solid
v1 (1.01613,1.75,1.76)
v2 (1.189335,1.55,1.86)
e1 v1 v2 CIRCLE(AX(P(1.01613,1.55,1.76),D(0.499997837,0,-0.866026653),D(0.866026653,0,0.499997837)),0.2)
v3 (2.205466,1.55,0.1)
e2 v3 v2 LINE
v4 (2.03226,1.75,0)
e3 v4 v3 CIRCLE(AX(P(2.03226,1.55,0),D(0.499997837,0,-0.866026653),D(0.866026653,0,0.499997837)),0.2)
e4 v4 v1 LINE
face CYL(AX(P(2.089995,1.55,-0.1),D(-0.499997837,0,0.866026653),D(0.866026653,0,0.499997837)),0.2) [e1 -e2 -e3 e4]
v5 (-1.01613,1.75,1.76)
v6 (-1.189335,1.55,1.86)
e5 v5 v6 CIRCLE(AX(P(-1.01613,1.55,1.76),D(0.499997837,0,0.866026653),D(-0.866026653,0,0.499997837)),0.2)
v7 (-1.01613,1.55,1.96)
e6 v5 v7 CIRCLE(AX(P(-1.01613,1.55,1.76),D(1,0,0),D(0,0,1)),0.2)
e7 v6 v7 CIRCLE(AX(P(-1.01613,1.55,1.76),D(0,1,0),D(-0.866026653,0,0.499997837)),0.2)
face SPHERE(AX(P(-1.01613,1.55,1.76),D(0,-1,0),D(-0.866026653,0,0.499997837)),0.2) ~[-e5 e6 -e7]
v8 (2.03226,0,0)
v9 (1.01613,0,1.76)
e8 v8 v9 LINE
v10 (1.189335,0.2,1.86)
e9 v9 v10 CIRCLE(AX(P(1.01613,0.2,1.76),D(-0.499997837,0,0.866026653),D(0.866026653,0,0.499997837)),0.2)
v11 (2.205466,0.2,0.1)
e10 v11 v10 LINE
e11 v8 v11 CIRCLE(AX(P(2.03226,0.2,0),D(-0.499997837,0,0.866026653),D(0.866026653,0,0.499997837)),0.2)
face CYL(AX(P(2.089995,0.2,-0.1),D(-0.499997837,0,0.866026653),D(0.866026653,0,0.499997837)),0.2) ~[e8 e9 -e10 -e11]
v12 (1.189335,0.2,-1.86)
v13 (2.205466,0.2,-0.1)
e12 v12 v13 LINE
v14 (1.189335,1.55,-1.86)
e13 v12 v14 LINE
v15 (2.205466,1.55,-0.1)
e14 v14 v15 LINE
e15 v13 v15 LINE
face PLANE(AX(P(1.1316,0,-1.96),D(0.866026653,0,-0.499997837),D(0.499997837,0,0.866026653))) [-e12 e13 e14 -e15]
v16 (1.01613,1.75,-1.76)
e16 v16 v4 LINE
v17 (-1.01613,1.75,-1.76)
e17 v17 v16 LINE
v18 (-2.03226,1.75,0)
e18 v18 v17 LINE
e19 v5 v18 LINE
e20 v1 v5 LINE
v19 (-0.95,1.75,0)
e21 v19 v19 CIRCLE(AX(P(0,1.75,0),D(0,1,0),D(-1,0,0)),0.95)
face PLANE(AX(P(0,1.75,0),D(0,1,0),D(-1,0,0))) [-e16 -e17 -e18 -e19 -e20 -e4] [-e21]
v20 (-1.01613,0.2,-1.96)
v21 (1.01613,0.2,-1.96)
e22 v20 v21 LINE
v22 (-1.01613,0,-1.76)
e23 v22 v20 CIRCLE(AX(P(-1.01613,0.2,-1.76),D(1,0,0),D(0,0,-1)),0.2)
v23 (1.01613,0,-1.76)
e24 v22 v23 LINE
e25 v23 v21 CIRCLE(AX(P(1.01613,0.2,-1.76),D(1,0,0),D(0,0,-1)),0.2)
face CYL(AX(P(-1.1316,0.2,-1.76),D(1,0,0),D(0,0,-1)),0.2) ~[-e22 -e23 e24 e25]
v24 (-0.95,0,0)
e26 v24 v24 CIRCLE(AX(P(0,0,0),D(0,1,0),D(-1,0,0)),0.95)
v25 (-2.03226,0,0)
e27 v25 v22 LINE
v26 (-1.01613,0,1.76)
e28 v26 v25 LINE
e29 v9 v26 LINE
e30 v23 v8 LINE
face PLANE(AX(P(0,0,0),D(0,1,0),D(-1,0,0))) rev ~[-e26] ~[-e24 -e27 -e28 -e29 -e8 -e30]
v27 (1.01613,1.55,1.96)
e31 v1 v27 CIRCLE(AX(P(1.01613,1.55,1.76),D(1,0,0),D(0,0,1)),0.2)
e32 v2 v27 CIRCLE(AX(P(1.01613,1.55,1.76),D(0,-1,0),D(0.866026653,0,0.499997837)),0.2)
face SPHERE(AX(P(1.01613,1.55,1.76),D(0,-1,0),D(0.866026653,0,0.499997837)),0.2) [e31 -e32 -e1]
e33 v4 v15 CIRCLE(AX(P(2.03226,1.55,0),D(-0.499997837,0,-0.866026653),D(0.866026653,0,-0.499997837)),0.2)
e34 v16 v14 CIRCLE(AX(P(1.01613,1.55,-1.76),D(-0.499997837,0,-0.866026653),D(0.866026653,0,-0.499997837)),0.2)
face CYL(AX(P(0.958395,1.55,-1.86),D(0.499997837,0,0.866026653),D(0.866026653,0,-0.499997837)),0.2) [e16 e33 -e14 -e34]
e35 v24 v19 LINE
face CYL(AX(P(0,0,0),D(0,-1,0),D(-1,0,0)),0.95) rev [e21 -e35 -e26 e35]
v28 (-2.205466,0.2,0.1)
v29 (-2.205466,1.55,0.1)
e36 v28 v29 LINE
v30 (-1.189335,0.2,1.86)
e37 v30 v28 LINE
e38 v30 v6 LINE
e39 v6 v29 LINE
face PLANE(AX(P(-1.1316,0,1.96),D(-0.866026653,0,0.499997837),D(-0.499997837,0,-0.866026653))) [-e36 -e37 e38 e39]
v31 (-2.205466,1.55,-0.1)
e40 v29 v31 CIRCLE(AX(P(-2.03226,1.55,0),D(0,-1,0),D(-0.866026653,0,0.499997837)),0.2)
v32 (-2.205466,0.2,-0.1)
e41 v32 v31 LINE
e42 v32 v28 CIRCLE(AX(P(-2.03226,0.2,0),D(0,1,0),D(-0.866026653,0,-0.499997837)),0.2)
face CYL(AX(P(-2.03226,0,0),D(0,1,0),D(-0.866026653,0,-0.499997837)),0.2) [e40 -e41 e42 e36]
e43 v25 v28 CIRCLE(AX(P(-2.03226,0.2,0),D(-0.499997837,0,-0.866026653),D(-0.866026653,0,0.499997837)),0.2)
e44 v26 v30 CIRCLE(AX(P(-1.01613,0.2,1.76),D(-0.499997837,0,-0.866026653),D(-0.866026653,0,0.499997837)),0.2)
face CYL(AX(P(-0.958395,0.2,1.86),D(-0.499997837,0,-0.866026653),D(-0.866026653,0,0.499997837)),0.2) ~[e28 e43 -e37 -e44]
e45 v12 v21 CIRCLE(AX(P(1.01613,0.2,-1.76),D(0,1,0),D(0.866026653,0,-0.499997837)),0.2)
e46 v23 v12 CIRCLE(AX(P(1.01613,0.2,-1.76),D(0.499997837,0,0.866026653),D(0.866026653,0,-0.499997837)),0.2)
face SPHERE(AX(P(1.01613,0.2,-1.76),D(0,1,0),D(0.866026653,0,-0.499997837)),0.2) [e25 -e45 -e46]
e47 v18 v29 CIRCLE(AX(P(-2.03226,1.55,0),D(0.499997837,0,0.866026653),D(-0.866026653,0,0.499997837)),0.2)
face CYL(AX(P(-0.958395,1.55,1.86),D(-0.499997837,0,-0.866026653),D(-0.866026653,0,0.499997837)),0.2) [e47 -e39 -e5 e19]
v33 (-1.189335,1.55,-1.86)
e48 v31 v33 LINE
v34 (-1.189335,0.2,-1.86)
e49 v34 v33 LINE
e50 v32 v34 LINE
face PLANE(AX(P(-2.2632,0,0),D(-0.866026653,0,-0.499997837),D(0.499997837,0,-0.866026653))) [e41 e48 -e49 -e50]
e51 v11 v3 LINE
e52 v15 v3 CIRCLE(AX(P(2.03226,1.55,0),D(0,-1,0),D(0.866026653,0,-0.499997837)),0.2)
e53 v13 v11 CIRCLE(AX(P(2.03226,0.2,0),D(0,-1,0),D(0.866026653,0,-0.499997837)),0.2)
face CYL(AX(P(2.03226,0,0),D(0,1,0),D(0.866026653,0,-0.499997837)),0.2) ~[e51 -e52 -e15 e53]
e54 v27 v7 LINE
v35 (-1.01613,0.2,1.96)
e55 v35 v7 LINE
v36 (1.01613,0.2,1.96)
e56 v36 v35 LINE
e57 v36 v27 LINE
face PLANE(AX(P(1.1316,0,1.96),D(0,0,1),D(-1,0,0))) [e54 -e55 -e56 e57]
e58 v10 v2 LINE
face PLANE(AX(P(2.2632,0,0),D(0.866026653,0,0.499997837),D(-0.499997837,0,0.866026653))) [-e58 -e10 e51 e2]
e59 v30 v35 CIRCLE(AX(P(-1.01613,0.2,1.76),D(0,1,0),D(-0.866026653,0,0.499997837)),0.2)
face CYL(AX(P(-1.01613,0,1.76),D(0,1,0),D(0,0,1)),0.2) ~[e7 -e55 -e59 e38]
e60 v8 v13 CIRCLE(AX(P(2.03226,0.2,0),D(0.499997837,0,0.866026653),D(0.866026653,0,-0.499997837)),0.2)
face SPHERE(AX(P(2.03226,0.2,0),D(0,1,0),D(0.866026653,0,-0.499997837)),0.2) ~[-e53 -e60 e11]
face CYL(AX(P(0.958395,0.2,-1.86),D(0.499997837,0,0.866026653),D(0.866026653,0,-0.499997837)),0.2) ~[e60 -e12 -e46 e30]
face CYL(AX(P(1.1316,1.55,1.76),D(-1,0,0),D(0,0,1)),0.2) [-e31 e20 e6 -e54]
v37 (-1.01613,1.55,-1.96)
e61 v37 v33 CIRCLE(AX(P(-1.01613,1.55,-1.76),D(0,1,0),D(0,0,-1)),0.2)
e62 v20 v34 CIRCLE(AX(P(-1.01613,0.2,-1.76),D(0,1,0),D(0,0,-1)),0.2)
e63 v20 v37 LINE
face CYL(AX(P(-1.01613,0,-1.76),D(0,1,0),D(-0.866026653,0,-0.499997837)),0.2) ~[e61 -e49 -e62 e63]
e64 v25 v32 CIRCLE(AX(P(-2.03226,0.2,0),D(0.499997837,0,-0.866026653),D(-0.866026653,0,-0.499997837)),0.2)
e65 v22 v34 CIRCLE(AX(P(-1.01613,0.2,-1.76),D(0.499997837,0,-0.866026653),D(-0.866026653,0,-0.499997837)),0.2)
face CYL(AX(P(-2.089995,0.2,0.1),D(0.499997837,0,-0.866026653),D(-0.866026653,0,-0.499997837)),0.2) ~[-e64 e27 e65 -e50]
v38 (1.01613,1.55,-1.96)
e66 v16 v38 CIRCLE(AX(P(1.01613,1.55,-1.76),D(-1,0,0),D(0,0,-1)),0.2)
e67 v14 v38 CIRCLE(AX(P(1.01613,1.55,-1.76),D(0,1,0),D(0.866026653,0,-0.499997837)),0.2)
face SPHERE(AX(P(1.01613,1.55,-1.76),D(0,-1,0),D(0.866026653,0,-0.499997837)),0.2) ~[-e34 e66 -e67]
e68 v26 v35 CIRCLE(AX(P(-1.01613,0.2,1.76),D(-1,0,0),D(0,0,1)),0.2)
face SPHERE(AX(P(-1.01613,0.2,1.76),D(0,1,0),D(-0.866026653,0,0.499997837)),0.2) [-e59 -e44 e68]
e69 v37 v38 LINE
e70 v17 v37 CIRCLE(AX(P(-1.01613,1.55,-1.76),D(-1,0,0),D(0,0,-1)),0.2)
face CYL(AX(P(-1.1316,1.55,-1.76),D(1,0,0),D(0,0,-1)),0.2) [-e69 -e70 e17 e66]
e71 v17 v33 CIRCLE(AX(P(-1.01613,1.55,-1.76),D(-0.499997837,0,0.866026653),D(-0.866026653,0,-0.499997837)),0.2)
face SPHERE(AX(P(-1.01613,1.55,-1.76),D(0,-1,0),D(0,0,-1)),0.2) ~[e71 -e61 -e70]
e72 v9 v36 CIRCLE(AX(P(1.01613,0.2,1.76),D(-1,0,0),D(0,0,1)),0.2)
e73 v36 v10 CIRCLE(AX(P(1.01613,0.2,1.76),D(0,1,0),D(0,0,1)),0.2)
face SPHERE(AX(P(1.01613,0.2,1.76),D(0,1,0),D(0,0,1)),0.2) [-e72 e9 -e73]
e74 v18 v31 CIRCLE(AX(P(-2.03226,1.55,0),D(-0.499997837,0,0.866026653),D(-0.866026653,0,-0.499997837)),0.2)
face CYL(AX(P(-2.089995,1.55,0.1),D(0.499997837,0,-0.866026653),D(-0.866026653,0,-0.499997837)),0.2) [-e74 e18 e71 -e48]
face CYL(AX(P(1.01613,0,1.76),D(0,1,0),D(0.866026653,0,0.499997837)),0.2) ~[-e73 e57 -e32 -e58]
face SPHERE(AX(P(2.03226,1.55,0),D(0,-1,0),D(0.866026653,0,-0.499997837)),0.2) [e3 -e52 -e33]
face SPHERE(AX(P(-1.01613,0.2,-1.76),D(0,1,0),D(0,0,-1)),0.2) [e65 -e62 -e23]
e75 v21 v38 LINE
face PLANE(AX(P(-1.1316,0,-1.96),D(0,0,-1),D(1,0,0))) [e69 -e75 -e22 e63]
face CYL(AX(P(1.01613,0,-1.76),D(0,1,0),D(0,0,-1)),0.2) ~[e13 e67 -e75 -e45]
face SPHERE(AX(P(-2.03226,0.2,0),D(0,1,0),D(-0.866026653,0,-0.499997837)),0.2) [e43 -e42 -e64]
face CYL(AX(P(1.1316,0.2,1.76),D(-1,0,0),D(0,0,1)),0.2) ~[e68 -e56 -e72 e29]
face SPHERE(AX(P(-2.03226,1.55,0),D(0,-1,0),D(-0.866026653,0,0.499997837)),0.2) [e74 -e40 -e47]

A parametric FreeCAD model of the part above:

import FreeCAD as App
import Part
import Sketcher

V = App.Vector
Q = App.Units.Quantity


def edges_at(feature, points):
    """Names of the edges that pass closest to the given points."""
    edges = feature.Shape.Edges
    near = lambda p: min(range(len(edges)), key=lambda i: edges[i].distToShape(Part.Vertex(*p))[0])
    return sorted({f"Edge{near(p) + 1}" for p in points})

doc = App.newDocument("Part")
body = doc.addObject("PartDesign::Body", "Body")

# Sketch on XZ plane
sketch1 = doc.addObject("Sketcher::SketchObject", "Sketch")
body.addObject(sketch1)
sketch1.AttachmentSupport = (doc.XZ_Plane, [""])
sketch1.MapMode = "FlatFace"
sketch1.addGeometry([
    Part.LineSegment(V(-1.1, -2, 0), V(-2.3, 0, 0)),  # 0
    Part.LineSegment(V(-2.3, 0, 0), V(-1.1, 2, 0)),  # 1
    Part.LineSegment(V(-1.1, 2, 0), V(1.1, 2, 0)),  # 2
    Part.LineSegment(V(1.1, 2, 0), V(2.3, 0, 0)),  # 3
    Part.LineSegment(V(2.3, 0, 0), V(1.1, -2, 0)),  # 4
    Part.LineSegment(V(1.1, -2, 0), V(-1.1, -2, 0)),  # 5
    Part.Circle(V(0, 0, 0), V(0, 0, 1), 0.9),  # 6
], False)
sketch1.addConstraint([
    Sketcher.Constraint("Coincident", 0, 2, 1, 1),
    Sketcher.Constraint("Coincident", 1, 2, 2, 1),
    Sketcher.Constraint("Coincident", 2, 2, 3, 1),
    Sketcher.Constraint("Coincident", 3, 2, 4, 1),
    Sketcher.Constraint("Coincident", 4, 2, 5, 1),
    Sketcher.Constraint("Coincident", 5, 2, 0, 1),
    Sketcher.Constraint("Horizontal", 2),
    Sketcher.Constraint("Horizontal", 5),
    Sketcher.Constraint("Coincident", 6, 3, -1, 1),
    Sketcher.Constraint("Symmetric", 0, 2, 3, 2, -1, 1),
    Sketcher.Constraint("Symmetric", 1, 2, 4, 2, -1, 1),
    Sketcher.Constraint("PointOnObject", 0, 2, -1),
    Sketcher.Constraint("Parallel", 0, 3),
    Sketcher.Constraint("Vertical", 2, 2, 4, 2),
    Sketcher.Constraint("Diameter", 6, 1.9),
    Sketcher.Constraint("Angle", 0, Q("119.9999 deg")),
    Sketcher.Constraint("DistanceY", 4, 2, 2, 2, 3.92),
    Sketcher.Constraint("DistanceX", 2, 1, 2, 2, 2.2632),
])
pad1 = doc.addObject("PartDesign::Pad", "Pad")
body.addObject(pad1)
pad1.Profile = sketch1
pad1.Length = 1.75
pad1.Reversed = True
doc.recompute()

fillet = doc.addObject("PartDesign::Fillet", "Fillet")
body.addObject(fillet)
fillet.Base = (pad1, edges_at(pad1, [
    (1.697, 1.75, 0.98),
    (0, 1.75, 1.96),
    (1.132, 0.875, 1.96),
    (0, 0, 1.96),
    (-1.132, 0.875, 1.96),
    (1.697, 0, 0.98),
    (2.263, 0.875, 0),
    (1.132, 0.875, -1.96),
    (1.697, 1.75, -0.98),
    (1.697, 0, -0.98),
    (-1.132, 0.875, -1.96),
    (0, 1.75, -1.96),
    (0, 0, -1.96),
    (-1.697, 1.75, 0.98),
    (-1.697, 1.75, -0.98),
    (-2.263, 0.875, 0),
    (-1.697, 0, -0.98),
    (-1.697, 0, 0.98),
]))
fillet.Radius = 0.2

doc.recompute()
